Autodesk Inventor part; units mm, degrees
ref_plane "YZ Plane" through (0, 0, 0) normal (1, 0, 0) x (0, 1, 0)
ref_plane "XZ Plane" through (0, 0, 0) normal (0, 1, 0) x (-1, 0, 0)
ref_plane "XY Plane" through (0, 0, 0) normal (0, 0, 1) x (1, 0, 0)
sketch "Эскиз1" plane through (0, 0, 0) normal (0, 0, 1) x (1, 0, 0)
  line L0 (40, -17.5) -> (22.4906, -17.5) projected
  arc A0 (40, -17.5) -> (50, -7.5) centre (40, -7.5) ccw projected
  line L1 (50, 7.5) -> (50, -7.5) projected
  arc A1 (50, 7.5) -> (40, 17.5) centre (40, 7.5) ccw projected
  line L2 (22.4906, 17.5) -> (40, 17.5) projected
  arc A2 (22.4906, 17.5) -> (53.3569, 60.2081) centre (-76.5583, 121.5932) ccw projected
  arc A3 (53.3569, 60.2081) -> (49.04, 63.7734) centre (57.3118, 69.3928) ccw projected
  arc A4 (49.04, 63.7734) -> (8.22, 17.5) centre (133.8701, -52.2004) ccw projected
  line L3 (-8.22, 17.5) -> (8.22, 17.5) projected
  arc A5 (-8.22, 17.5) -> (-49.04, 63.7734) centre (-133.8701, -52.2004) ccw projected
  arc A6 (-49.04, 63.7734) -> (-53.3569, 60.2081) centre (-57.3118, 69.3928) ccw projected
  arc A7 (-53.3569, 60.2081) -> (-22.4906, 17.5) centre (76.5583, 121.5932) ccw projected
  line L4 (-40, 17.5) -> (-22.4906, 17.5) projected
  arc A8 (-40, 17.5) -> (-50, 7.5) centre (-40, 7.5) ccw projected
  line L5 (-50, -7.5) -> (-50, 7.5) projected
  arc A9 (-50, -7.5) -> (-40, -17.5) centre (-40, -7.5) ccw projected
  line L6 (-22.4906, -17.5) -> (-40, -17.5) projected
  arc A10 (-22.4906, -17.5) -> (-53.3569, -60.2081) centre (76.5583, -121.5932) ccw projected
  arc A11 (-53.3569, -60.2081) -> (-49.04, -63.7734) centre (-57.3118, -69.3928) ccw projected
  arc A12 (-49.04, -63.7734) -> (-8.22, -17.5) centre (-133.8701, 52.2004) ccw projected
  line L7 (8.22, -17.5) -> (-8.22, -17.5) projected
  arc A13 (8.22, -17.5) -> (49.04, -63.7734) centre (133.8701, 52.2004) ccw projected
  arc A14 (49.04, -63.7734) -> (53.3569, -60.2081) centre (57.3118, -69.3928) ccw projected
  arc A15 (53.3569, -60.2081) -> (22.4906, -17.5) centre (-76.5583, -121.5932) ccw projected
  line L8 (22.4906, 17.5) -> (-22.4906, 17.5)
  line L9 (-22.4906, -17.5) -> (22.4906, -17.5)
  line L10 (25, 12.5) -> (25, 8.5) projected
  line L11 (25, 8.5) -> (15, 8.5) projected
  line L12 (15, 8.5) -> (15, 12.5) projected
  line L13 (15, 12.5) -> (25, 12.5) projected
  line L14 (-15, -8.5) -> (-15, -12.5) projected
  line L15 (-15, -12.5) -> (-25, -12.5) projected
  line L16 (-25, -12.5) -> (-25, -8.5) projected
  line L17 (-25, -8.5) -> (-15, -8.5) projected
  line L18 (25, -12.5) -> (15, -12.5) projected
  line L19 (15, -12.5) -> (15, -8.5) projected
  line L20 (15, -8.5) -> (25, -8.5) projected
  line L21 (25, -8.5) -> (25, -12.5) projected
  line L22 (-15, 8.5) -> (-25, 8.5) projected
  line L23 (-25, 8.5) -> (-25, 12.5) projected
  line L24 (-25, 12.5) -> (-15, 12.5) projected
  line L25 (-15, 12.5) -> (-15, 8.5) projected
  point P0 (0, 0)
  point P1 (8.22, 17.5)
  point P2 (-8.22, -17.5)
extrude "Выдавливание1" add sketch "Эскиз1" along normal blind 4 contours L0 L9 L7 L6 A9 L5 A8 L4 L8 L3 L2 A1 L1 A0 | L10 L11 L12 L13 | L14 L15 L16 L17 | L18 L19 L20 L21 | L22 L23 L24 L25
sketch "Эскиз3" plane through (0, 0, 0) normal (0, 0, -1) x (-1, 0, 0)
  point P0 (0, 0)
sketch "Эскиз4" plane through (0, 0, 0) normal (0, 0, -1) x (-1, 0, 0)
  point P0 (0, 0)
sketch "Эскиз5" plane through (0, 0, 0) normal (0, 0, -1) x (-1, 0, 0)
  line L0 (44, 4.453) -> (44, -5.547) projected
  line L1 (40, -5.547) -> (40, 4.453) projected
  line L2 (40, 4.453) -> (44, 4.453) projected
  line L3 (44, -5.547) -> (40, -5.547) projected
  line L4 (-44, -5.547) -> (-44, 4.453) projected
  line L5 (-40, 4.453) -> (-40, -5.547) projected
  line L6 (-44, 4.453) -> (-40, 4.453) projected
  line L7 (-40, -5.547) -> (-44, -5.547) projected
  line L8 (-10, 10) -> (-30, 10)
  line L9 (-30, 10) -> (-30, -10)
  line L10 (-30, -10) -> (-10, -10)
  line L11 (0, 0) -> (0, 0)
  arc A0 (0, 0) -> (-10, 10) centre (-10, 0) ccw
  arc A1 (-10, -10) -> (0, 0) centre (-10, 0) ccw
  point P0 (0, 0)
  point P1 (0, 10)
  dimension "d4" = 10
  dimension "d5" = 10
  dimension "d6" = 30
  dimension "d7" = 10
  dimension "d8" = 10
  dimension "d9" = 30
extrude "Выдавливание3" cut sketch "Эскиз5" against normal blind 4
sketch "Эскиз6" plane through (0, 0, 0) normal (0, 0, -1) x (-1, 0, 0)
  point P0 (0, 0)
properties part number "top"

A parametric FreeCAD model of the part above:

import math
import FreeCAD as App
import Part
import Sketcher
from FreeCAD import Vector
Q = App.Units.Quantity


def add_polygon(sketch, points):
    """Adds a closed chain of lines whose ends are joined by coincident constraints."""
    first, n = sketch.GeometryCount, len(points)
    for a, b in zip(points, points[1:] + points[:1]):
        sketch.addGeometry(Part.LineSegment(App.Vector(*a, 0), App.Vector(*b, 0)), False)
    for i in range(n):
        sketch.addConstraint(Sketcher.Constraint("Coincident", first + i, 2, first + (i + 1) % n, 1))

doc = App.newDocument("Part")
params = doc.addObject("Spreadsheet::Sheet", "Params")
for row, (alias, value) in enumerate([
    ("sketch1_radius", "10 mm"),
    ("sketch1_width", "80 mm"),
    ("sketch1_height", "15 mm"),
    ("pad1_length", "4 mm"),
    ("sketch2_radius", "10 mm"),
    ("sketch2_height", "10 mm"),
    ("sketch2_width", "4 mm"),
    ("pocket1_length", "4 mm"),
], start=1):
    params.set(f"A{row}", alias)
    params.set(f"B{row}", "=" + value)
    params.setAlias(f"B{row}", alias)

body = doc.addObject("PartDesign::Body", "Body")

# Sketch on XY plane
sketch1 = doc.addObject("Sketcher::SketchObject", "Sketch")
body.addObject(sketch1)
sketch1.AttachmentSupport = (doc.XY_Plane, [""])
sketch1.MapMode = "FlatFace"
sketch1.addGeometry([
    Part.ArcOfCircle(Part.Circle(Vector(40, -7.5, 0), Vector(0, 0, 1), 10), math.radians(-90), math.radians(0)),  # 0
    Part.LineSegment(Vector(50, -7.5, 0), Vector(50, 7.5, 0)),  # 1
    Part.ArcOfCircle(Part.Circle(Vector(40, 7.5, 0), Vector(0, 0, 1), 10), math.radians(0), math.radians(90)),  # 2
    Part.LineSegment(Vector(40, 17.5, 0), Vector(-40, 17.5, 0)),  # 3
    Part.ArcOfCircle(Part.Circle(Vector(-40, 7.5, 0), Vector(0, 0, 1), 10), math.radians(90), math.radians(180)),  # 4
    Part.LineSegment(Vector(-50, 7.5, 0), Vector(-50, -7.5, 0)),  # 5
    Part.ArcOfCircle(Part.Circle(Vector(-40, -7.5, 0), Vector(0, 0, 1), 10), math.radians(180), math.radians(270)),  # 6
    Part.LineSegment(Vector(-40, -17.5, 0), Vector(40, -17.5, 0)),  # 7
], False)
sketch1.addConstraint([
    Sketcher.Constraint("Tangent", 0, 2, 1, 1),
    Sketcher.Constraint("Tangent", 1, 2, 2, 1),
    Sketcher.Constraint("Tangent", 2, 2, 3, 1),
    Sketcher.Constraint("Tangent", 3, 2, 4, 1),
    Sketcher.Constraint("Tangent", 4, 2, 5, 1),
    Sketcher.Constraint("Tangent", 5, 2, 6, 1),
    Sketcher.Constraint("Tangent", 6, 2, 7, 1),
    Sketcher.Constraint("Tangent", 7, 2, 0, 1),
    Sketcher.Constraint("Vertical", 1),
    Sketcher.Constraint("Horizontal", 3),
    Sketcher.Constraint("Vertical", 5),
    Sketcher.Constraint("Horizontal", 7),
    Sketcher.Constraint("Equal", 0, 2),
    Sketcher.Constraint("Equal", 2, 4),
    Sketcher.Constraint("Equal", 4, 6),
    Sketcher.Constraint("Symmetric", 0, 3, 4, 3, -1, 1),
    Sketcher.Constraint("Radius", 0, Q("10 mm")),
    Sketcher.Constraint("DistanceX", 3, 2, 3, 1, Q("80 mm")),
    Sketcher.Constraint("DistanceY", 1, 1, 1, 2, Q("15 mm")),
])
sketch1.setExpression("Constraints[16]", "Params.sketch1_radius")
sketch1.setExpression("Constraints[17]", "Params.sketch1_width")
sketch1.setExpression("Constraints[18]", "Params.sketch1_height")
pad1 = doc.addObject("PartDesign::Pad", "Pad")
body.addObject(pad1)
pad1.Profile = sketch1
pad1.setExpression("Length", "Params.pad1_length")

# Sketch on XY plane
sketch2 = doc.addObject("Sketcher::SketchObject", "Sketch001")
body.addObject(sketch2)
sketch2.AttachmentSupport = (doc.XY_Plane, [""])
sketch2.MapMode = "FlatFace"
add_polygon(sketch2, [(-44, -5.547), (-44, 4.453), (-40, 4.453), (-40, -5.547)])  # lines 0-3
add_polygon(sketch2, [(44, 4.453), (44, -5.547), (40, -5.547), (40, 4.453)])  # lines 4-7
sketch2.addGeometry(Part.ArcOfCircle(Part.Circle(Vector(10, 0, 0), Vector(0, 0, 1), 10), math.radians(90), math.radians(270)), False)  # 8
sketch2.addGeometry(Part.LineSegment(Vector(10, 10, 0), Vector(30, 10, 0)), False)  # 9
sketch2.addGeometry(Part.LineSegment(Vector(30, 10, 0), Vector(30, -10, 0)), False)  # 10
sketch2.addGeometry(Part.LineSegment(Vector(30, -10, 0), Vector(10, -10, 0)), False)  # 11
sketch2.addConstraint([
    Sketcher.Constraint("Tangent", 8, 1, 9, 1),
    Sketcher.Constraint("Coincident", 9, 2, 10, 1),
    Sketcher.Constraint("Coincident", 10, 2, 11, 1),
    Sketcher.Constraint("Tangent", 11, 2, 8, 2),
    Sketcher.Constraint("Vertical", 0),
    Sketcher.Constraint("Horizontal", 1),
    Sketcher.Constraint("Vertical", 2),
    Sketcher.Constraint("Horizontal", 3),
    Sketcher.Constraint("Vertical", 4),
    Sketcher.Constraint("Horizontal", 5),
    Sketcher.Constraint("Vertical", 6),
    Sketcher.Constraint("Horizontal", 7),
    Sketcher.Constraint("Horizontal", 9),
    Sketcher.Constraint("Vertical", 10),
    Sketcher.Constraint("Horizontal", 11),
    Sketcher.Constraint("Symmetric", 3, 2, 4, 2, -2),
    Sketcher.Constraint("Symmetric", 1, 2, 6, 2, -2),
    Sketcher.Constraint("PointOnObject", 8, 3, -1),
    Sketcher.Constraint("Equal", 11, 10),
    Sketcher.Constraint("Radius", 8, Q("10 mm")),
    Sketcher.Constraint("DistanceY", 0, 1, 0, 2, Q("10 mm")),
    Sketcher.Constraint("DistanceX", -1, 1, 8, 3, Q("10 mm")),
    Sketcher.Constraint("DistanceX", 8, 3, 5, 2, Q("30 mm")),
    Sketcher.Constraint("DistanceX", 1, 1, 1, 2, Q("4 mm")),
    Sketcher.Constraint("DistanceY", -1, 1, 0, 2, Q("4.453 mm")),
])
sketch2.setExpression("Constraints[27]", "Params.sketch2_radius")
sketch2.setExpression("Constraints[28]", "Params.sketch2_height")
sketch2.setExpression("Constraints[31]", "Params.sketch2_width")
pocket1 = doc.addObject("PartDesign::Pocket", "Pocket")
body.addObject(pocket1)
pocket1.Profile = sketch2
pocket1.setExpression("Length", "Params.pocket1_length")
pocket1.Reversed = True

doc.recompute()
